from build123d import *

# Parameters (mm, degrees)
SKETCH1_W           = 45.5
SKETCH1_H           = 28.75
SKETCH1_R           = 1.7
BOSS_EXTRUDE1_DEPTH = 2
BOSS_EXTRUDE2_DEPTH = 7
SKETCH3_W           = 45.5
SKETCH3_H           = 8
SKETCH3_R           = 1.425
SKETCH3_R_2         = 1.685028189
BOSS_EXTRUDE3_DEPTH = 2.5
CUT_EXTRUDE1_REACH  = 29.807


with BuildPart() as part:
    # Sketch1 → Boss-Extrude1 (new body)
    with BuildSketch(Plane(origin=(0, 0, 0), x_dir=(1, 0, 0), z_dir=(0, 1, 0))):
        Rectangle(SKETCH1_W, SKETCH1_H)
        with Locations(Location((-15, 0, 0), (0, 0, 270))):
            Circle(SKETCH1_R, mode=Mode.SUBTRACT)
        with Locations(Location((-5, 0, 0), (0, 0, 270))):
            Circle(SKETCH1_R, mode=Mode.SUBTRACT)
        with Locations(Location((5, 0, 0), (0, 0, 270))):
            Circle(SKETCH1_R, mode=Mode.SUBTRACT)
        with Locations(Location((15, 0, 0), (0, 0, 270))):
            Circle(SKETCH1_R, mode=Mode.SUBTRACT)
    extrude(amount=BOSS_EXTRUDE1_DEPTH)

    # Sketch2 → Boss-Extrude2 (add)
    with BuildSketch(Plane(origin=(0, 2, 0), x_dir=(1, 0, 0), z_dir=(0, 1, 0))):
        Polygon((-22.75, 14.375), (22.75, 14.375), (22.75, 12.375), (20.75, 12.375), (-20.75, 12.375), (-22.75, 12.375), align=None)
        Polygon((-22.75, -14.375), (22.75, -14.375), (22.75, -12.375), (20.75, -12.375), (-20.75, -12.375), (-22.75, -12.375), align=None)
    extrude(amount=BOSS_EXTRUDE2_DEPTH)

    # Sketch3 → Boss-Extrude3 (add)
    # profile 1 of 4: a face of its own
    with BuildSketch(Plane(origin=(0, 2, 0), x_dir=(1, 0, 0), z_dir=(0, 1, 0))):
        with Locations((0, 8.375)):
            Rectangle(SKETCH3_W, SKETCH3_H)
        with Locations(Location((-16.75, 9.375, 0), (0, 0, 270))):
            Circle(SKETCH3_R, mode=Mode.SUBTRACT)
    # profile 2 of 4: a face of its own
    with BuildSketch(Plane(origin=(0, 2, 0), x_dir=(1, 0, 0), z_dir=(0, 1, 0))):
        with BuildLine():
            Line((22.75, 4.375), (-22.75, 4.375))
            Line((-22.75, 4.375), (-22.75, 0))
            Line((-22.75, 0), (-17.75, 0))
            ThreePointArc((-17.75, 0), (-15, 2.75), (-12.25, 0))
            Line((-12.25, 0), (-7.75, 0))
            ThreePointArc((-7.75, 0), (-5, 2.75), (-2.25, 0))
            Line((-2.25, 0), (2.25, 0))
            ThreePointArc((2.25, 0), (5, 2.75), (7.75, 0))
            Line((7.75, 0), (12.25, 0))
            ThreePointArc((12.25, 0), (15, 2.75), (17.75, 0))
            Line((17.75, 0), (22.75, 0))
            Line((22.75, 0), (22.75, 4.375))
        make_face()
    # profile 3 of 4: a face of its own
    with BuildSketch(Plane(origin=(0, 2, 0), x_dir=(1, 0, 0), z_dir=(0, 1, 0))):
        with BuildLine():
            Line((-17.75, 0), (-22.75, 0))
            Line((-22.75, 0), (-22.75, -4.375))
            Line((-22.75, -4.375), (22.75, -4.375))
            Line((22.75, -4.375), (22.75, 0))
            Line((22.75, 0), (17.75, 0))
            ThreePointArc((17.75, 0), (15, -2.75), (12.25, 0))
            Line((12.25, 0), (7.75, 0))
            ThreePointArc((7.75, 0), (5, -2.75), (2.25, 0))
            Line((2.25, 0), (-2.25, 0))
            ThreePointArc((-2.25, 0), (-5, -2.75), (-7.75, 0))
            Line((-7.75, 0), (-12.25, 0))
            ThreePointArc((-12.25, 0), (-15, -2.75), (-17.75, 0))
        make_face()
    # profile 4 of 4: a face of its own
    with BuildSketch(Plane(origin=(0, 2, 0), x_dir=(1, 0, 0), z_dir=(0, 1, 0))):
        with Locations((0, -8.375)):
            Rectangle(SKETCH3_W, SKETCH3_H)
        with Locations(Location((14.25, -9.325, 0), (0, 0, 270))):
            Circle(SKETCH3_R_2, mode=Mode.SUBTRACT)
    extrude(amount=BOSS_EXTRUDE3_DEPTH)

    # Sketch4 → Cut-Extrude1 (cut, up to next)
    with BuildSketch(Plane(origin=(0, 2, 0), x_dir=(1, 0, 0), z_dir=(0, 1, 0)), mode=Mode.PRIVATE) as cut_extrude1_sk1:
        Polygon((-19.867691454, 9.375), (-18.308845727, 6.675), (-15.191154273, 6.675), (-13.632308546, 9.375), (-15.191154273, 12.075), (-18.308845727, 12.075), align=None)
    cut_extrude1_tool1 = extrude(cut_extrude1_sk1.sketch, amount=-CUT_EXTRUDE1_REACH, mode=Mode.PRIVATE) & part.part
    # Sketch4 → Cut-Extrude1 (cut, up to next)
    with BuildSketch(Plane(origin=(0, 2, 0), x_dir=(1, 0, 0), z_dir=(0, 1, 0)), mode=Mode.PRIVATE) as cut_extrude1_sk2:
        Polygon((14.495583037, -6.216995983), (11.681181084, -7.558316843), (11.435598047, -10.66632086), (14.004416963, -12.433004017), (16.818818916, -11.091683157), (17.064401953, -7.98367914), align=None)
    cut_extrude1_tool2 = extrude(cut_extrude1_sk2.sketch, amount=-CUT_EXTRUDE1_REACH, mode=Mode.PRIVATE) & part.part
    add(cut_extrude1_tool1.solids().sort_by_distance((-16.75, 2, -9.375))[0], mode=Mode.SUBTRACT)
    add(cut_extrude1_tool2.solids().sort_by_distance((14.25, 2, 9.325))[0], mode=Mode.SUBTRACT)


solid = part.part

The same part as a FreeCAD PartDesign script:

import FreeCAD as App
import Part
import Sketcher
from FreeCAD import Vector
Q = App.Units.Quantity


def add_polygon(sketch, points):
    """Adds a closed chain of lines whose ends are joined by coincident constraints."""
    first, n = sketch.GeometryCount, len(points)
    for a, b in zip(points, points[1:] + points[:1]):
        sketch.addGeometry(Part.LineSegment(App.Vector(*a, 0), App.Vector(*b, 0)), False)
    for i in range(n):
        sketch.addConstraint(Sketcher.Constraint("Coincident", first + i, 2, first + (i + 1) % n, 1))

doc = App.newDocument("Part")
body = doc.addObject("PartDesign::Body", "Body")

# Sketch on XZ plane
sketch1 = body.newObject("Sketcher::SketchObject", "Sketch")
sketch1.AttachmentSupport = (doc.getObject("XZ_Plane"), [""])
sketch1.MapMode = "FlatFace"
add_polygon(sketch1, [(-22.75, -14.375), (-22.75, 14.375), (22.75, 14.375), (22.75, -14.375)])  # lines 0-3
sketch1.addGeometry(Part.Circle(Vector(-15, 0, 0), Vector(0, 0, 1), 1.7), False)  # 4
sketch1.addGeometry(Part.Circle(Vector(-5, 0, 0), Vector(0, 0, 1), 1.7), False)  # 5
sketch1.addGeometry(Part.Circle(Vector(5, 0, 0), Vector(0, 0, 1), 1.7), False)  # 6
sketch1.addGeometry(Part.Circle(Vector(15, 0, 0), Vector(0, 0, 1), 1.7), False)  # 7
sketch1.addConstraint(Sketcher.Constraint("Vertical", 0))
sketch1.addConstraint(Sketcher.Constraint("Horizontal", 1))
sketch1.addConstraint(Sketcher.Constraint("Vertical", 2))
sketch1.addConstraint(Sketcher.Constraint("Horizontal", 3))
sketch1.addConstraint(Sketcher.Constraint("Equal", 4, 5))
sketch1.addConstraint(Sketcher.Constraint("Equal", 5, 6))
sketch1.addConstraint(Sketcher.Constraint("Equal", 6, 7))
sketch1.addConstraint(Sketcher.Constraint("Symmetric", 5, 3, 6, 3, -1, 1))
sketch1.addConstraint(Sketcher.Constraint("Symmetric", 4, 3, 7, 3, -1, 1))
sketch1.addConstraint(Sketcher.Constraint("Symmetric", 0, 2, 2, 2, -1, 1))
sketch1.addConstraint(Sketcher.Constraint("PointOnObject", 4, 3, -1))
sketch1.addConstraint(Sketcher.Constraint("PointOnObject", 5, 3, -1))
sketch1.addConstraint(Sketcher.Constraint("Diameter", 4, Q("3.4 mm")))
sketch1.addConstraint(Sketcher.Constraint("DistanceX", 1, 1, 1, 2, Q("45.5 mm")))
sketch1.addConstraint(Sketcher.Constraint("DistanceX", 4, 3, -1, 1, Q("15 mm")))
sketch1.addConstraint(Sketcher.Constraint("DistanceX", 5, 3, -1, 1, Q("5 mm")))
sketch1.addConstraint(Sketcher.Constraint("DistanceY", 0, 1, 0, 2, Q("28.75 mm")))
pad1 = body.newObject("PartDesign::Pad", "Pad")
pad1.Profile = sketch1
pad1.Length = 2
pad1.Reversed = True

# Sketch on XZ plane
sketch2 = body.newObject("Sketcher::SketchObject", "Sketch001")
sketch2.AttachmentSupport = (doc.getObject("XZ_Plane"), [""])
sketch2.MapMode = "FlatFace"
sketch2.AttachmentOffset = App.Placement(Vector(0, 0, -2), App.Rotation())
add_polygon(sketch2, [(22.75, -14.375), (-22.75, -14.375), (-22.75, -12.375), (22.75, -12.375)])  # lines 0-3
add_polygon(sketch2, [(-22.75, 14.375), (22.75, 14.375), (22.75, 12.375), (-22.75, 12.375)])  # lines 4-7
sketch2.addConstraint(Sketcher.Constraint("Horizontal", 0))
sketch2.addConstraint(Sketcher.Constraint("Vertical", 1))
sketch2.addConstraint(Sketcher.Constraint("Horizontal", 2))
sketch2.addConstraint(Sketcher.Constraint("Vertical", 3))
sketch2.addConstraint(Sketcher.Constraint("Horizontal", 4))
sketch2.addConstraint(Sketcher.Constraint("Vertical", 5))
sketch2.addConstraint(Sketcher.Constraint("Horizontal", 6))
sketch2.addConstraint(Sketcher.Constraint("Vertical", 7))
sketch2.addConstraint(Sketcher.Constraint("Symmetric", 0, 2, 4, 2, -1, 1))
sketch2.addConstraint(Sketcher.Constraint("Symmetric", 2, 2, 6, 2, -1, 1))
sketch2.addConstraint(Sketcher.Constraint("Vertical", 3, 2, 4, 2))
sketch2.addConstraint(Sketcher.Constraint("DistanceY", 1, 1, 1, 2, Q("2 mm")))
sketch2.addConstraint(Sketcher.Constraint("DistanceX", 0, 2, 0, 1, Q("45.5 mm")))
sketch2.addConstraint(Sketcher.Constraint("DistanceY", 2, 2, 4, 2, Q("26.75 mm")))
pad2 = body.newObject("PartDesign::Pad", "Pad001")
pad2.Profile = sketch2
pad2.Length = 7
pad2.Reversed = True

# Sketch on XZ plane
sketch3 = body.newObject("Sketcher::SketchObject", "Sketch002")
sketch3.AttachmentSupport = (doc.getObject("XZ_Plane"), [""])
sketch3.MapMode = "FlatFace"
sketch3.AttachmentOffset = App.Placement(Vector(0, 0, -2), App.Rotation())
add_polygon(sketch3, [(-22.75, -12.375), (-22.75, 12.375), (22.75, 12.375), (22.75, -12.375)])  # lines 0-3
sketch3.addGeometry(Part.Circle(Vector(-16.75, -9.375, 0), Vector(0, 0, 1), 1.425), False)  # 4
sketch3.addGeometry(Part.Circle(Vector(-15, 0, 0), Vector(0, 0, 1), 2.75), False)  # 5
sketch3.addGeometry(Part.Circle(Vector(-5, 0, 0), Vector(0, 0, 1), 2.75), False)  # 6
sketch3.addGeometry(Part.Circle(Vector(5, 0, 0), Vector(0, 0, 1), 2.75), False)  # 7
sketch3.addGeometry(Part.Circle(Vector(15, 0, 0), Vector(0, 0, 1), 2.75), False)  # 8
sketch3.addGeometry(Part.Circle(Vector(14.25, 9.325, 0), Vector(0, 0, 1), 1.685028), False)  # 9
sketch3.addConstraint(Sketcher.Constraint("Vertical", 0))
sketch3.addConstraint(Sketcher.Constraint("Horizontal", 1))
sketch3.addConstraint(Sketcher.Constraint("Vertical", 2))
sketch3.addConstraint(Sketcher.Constraint("Horizontal", 3))
sketch3.addConstraint(Sketcher.Constraint("Equal", 5, 6))
sketch3.addConstraint(Sketcher.Constraint("Equal", 6, 7))
sketch3.addConstraint(Sketcher.Constraint("Equal", 7, 8))
sketch3.addConstraint(Sketcher.Constraint("Symmetric", 6, 3, 7, 3, -1, 1))
sketch3.addConstraint(Sketcher.Constraint("Symmetric", 5, 3, 8, 3, -1, 1))
sketch3.addConstraint(Sketcher.Constraint("Symmetric", 0, 2, 2, 2, -1, 1))
sketch3.addConstraint(Sketcher.Constraint("PointOnObject", 5, 3, -1))
sketch3.addConstraint(Sketcher.Constraint("PointOnObject", 6, 3, -1))
sketch3.addConstraint(Sketcher.Constraint("Diameter", 5, Q("5.5 mm")))
sketch3.addConstraint(Sketcher.Constraint("Diameter", 4, Q("2.85 mm")))
sketch3.addConstraint(Sketcher.Constraint("DistanceX", 1, 1, 1, 2, Q("45.5 mm")))
sketch3.addConstraint(Sketcher.Constraint("DistanceX", 5, 3, -1, 1, Q("15 mm")))
sketch3.addConstraint(Sketcher.Constraint("DistanceX", 6, 3, -1, 1, Q("5 mm")))
sketch3.addConstraint(Sketcher.Constraint("DistanceX", 4, 3, 9, 3, Q("31 mm")))
sketch3.addConstraint(Sketcher.Constraint("DistanceX", 0, 2, 4, 3, Q("6 mm")))
sketch3.addConstraint(Sketcher.Constraint("DistanceY", 3, 2, 4, 3, Q("3 mm")))
sketch3.addConstraint(Sketcher.Constraint("DistanceY", 0, 1, 0, 2, Q("24.75 mm")))
sketch3.addConstraint(Sketcher.Constraint("DistanceY", 4, 3, 9, 3, Q("18.7 mm")))
sketch3.addConstraint(Sketcher.Constraint("Diameter", 9, Q("3.370056 mm")))
pad3 = body.newObject("PartDesign::Pad", "Pad002")
pad3.Profile = sketch3
pad3.Length = 2.5
pad3.Reversed = True

# Sketch on XZ plane
sketch4 = body.newObject("Sketcher::SketchObject", "Sketch003")
sketch4.AttachmentSupport = (doc.getObject("XZ_Plane"), [""])
sketch4.MapMode = "FlatFace"
sketch4.AttachmentOffset = App.Placement(Vector(0, 0, -2), App.Rotation())
add_polygon(sketch4, [(-19.867691, -9.375), (-18.308846, -6.675), (-15.191154, -6.675), (-13.632309, -9.375), (-15.191154, -12.075), (-18.308846, -12.075)])  # lines 0-5
sketch4.addConstraint(Sketcher.Constraint("Horizontal", 1))
sketch4.addConstraint(Sketcher.Constraint("Horizontal", 4))
sketch4.addConstraint(Sketcher.Constraint("Parallel", 0, 3))
sketch4.addConstraint(Sketcher.Constraint("Parallel", 2, 5))
sketch4.addConstraint(Sketcher.Constraint("Horizontal", 2, 2, 5, 2))
sketch4.addConstraint(Sketcher.Constraint("Vertical", 1, 2, 3, 2))
sketch4.addConstraint(Sketcher.Constraint("Vertical", 0, 2, 4, 2))
sketch4.addConstraint(Sketcher.Constraint("Angle", 0, Q("60 deg")))
sketch4.addConstraint(Sketcher.Constraint("DistanceY", 2, 2, 1, 2, Q("2.7 mm")))
sketch4.addConstraint(Sketcher.Constraint("DistanceY", 0, 2, -1, 1, Q("6.675 mm")))
sketch4.addConstraint(Sketcher.Constraint("DistanceX", 1, 1, 1, 2, Q("3.117691 mm")))
sketch4.addConstraint(Sketcher.Constraint("DistanceX", 2, 2, -1, 1, Q("13.632309 mm")))
pocket1 = body.newObject("PartDesign::Pocket", "Pocket")
pocket1.Profile = sketch4
pocket1.Type = "UpToFirst"
pocket1.Reversed = True

# Sketch on XZ plane
sketch5 = body.newObject("Sketcher::SketchObject", "Sketch004")
sketch5.AttachmentSupport = (doc.getObject("XZ_Plane"), [""])
sketch5.MapMode = "FlatFace"
sketch5.AttachmentOffset = App.Placement(Vector(0, 0, -2), App.Rotation())
add_polygon(sketch5, [(14.495583, 6.216996), (11.681181, 7.558317), (11.435598, 10.666321), (14.004417, 12.433004), (16.818819, 11.091683), (17.064402, 7.983679)])  # lines 0-5
sketch5.addConstraint(Sketcher.Constraint("Parallel", 0, 3))
sketch5.addConstraint(Sketcher.Constraint("Parallel", 1, 4))
sketch5.addConstraint(Sketcher.Constraint("Parallel", 2, 5))
sketch5.addConstraint(Sketcher.Constraint("Equal", 0, 1))
sketch5.addConstraint(Sketcher.Constraint("Equal", 1, 2))
sketch5.addConstraint(Sketcher.Constraint("Equal", 2, 3))
sketch5.addConstraint(Sketcher.Constraint("DistanceX", -1, 1, 1, 2, Q("11.435598 mm")))
sketch5.addConstraint(Sketcher.Constraint("DistanceX", -1, 1, 4, 2, Q("17.064402 mm")))
sketch5.addConstraint(Sketcher.Constraint("DistanceX", 2, 2, 3, 2, Q("2.814402 mm")))
sketch5.addConstraint(Sketcher.Constraint("Distance", 0, Q("3.117691 mm")))
sketch5.addConstraint(Sketcher.Constraint("DistanceX", -1, 1, 0, 2, Q("11.681181 mm")))
sketch5.addConstraint(Sketcher.Constraint("DistanceY", -1, 1, 1, 2, Q("10.666321 mm")))
pocket2 = body.newObject("PartDesign::Pocket", "Pocket001")
pocket2.Profile = sketch5
pocket2.Type = "UpToFirst"
pocket2.Reversed = True

doc.recompute()
